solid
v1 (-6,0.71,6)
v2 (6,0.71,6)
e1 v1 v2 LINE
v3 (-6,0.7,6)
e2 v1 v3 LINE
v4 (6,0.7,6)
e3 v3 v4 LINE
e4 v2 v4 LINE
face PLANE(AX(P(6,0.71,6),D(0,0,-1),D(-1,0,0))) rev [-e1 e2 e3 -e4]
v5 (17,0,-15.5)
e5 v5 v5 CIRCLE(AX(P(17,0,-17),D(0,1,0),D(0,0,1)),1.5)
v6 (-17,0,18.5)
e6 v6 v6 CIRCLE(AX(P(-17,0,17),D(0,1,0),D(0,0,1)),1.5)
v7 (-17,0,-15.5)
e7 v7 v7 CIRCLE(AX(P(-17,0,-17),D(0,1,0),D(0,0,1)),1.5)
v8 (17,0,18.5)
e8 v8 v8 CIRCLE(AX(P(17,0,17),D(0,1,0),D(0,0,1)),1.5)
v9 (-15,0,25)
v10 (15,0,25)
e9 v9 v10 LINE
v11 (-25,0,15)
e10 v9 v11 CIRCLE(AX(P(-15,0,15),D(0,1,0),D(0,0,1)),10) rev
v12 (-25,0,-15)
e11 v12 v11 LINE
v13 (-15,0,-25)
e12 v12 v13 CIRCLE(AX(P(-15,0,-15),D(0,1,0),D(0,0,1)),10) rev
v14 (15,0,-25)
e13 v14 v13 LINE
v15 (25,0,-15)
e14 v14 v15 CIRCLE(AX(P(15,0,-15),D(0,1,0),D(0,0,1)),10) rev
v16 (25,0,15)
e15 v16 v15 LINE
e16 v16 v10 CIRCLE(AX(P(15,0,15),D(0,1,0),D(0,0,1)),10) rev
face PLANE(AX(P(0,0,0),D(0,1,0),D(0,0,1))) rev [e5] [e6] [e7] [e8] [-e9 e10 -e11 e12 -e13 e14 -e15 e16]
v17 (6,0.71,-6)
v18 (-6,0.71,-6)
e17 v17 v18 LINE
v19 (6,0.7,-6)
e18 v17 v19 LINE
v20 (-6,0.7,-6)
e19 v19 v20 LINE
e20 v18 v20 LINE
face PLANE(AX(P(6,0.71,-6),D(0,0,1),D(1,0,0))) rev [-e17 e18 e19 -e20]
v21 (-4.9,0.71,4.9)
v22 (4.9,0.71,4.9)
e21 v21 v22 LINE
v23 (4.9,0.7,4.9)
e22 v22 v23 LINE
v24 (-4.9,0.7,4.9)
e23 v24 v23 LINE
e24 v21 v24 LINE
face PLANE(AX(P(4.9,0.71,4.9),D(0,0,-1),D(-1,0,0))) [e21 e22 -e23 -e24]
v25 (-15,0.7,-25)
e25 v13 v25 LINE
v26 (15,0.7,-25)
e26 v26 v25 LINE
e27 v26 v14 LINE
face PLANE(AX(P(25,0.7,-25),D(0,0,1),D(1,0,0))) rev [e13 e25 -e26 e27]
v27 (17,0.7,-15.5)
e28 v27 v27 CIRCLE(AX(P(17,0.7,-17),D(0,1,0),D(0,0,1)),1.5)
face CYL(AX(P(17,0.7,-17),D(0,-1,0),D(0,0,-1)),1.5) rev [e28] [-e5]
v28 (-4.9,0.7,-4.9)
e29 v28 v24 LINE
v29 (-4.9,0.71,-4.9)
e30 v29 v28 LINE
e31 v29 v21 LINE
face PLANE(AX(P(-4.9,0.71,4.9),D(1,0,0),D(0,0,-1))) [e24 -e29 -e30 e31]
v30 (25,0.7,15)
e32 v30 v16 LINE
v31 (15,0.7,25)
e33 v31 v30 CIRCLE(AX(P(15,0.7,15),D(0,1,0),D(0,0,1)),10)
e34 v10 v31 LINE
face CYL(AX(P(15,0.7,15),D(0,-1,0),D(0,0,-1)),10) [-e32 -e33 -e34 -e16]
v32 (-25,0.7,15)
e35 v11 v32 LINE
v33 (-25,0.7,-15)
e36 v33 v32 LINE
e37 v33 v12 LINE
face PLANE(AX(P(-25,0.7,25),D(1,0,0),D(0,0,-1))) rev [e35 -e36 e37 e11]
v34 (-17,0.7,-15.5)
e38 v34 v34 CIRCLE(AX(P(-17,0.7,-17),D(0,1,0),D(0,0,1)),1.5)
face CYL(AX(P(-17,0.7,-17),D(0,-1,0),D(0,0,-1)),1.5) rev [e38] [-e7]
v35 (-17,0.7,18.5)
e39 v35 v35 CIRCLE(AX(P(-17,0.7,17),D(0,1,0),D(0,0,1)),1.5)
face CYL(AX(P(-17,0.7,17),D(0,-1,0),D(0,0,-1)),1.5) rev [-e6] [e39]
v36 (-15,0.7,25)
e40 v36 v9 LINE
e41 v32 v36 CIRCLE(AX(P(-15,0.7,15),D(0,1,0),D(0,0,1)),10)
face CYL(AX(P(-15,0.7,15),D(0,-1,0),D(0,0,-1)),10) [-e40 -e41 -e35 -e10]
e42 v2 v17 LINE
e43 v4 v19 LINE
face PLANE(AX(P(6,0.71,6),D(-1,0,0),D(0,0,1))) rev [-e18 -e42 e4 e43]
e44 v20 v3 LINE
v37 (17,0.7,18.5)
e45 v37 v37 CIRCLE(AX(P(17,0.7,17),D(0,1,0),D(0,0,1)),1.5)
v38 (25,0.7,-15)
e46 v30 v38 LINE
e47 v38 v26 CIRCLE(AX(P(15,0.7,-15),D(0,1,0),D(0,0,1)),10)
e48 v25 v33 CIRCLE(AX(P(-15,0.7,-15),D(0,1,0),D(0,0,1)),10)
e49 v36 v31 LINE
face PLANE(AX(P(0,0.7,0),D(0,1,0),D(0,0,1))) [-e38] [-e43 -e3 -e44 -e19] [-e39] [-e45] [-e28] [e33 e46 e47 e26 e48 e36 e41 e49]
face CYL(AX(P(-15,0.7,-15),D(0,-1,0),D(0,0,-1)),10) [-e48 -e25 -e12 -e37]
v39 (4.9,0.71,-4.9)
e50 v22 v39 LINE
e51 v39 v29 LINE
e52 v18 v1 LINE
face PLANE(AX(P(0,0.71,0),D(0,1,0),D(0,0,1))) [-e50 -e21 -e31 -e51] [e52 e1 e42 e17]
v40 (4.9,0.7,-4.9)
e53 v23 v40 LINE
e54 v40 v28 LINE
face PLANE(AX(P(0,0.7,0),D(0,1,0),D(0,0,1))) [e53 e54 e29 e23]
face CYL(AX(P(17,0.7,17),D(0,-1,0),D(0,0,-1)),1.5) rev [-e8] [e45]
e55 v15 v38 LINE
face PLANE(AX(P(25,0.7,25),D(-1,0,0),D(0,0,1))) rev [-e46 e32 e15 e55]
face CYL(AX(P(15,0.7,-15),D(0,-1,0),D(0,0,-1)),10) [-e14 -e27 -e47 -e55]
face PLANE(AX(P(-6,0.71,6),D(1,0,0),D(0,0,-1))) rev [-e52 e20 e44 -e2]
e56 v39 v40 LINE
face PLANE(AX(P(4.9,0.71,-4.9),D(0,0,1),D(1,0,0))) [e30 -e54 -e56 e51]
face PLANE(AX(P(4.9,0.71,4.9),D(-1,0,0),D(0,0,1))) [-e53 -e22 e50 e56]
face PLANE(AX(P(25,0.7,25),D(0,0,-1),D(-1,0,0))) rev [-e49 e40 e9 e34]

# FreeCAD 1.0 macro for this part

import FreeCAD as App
import Part
import Sketcher

V = App.Vector
Q = App.Units.Quantity


def edges_at(feature, points):
    """Names of the edges that pass closest to the given points."""
    edges = feature.Shape.Edges
    near = lambda p: min(range(len(edges)), key=lambda i: edges[i].distToShape(Part.Vertex(*p))[0])
    return sorted({f"Edge{near(p) + 1}" for p in points})

doc = App.newDocument("Part")
body = doc.addObject("PartDesign::Body", "Body")

# Sketch on XZ plane
sketch1 = body.newObject("Sketcher::SketchObject", "Sketch")
sketch1.AttachmentSupport = (doc.getObject("XZ_Plane"), [""])
sketch1.MapMode = "FlatFace"
sketch1.addGeometry([
    Part.LineSegment(V(-25, -25, 0), V(-25, 25, 0)),  # 0
    Part.LineSegment(V(-25, 25, 0), V(25, 25, 0)),  # 1
    Part.LineSegment(V(25, 25, 0), V(25, -25, 0)),  # 2
    Part.LineSegment(V(25, -25, 0), V(-25, -25, 0)),  # 3
    Part.Circle(V(-17, 17, 0), V(0, 0, 1), 1.5),  # 4
    Part.Circle(V(17, 17, 0), V(0, 0, 1), 1.5),  # 5
    Part.Circle(V(-17, -17, 0), V(0, 0, 1), 1.5),  # 6
    Part.Circle(V(17, -17, 0), V(0, 0, 1), 1.5),  # 7
], False)
sketch1.addConstraint([
    Sketcher.Constraint("Coincident", 0, 2, 1, 1),
    Sketcher.Constraint("Coincident", 1, 2, 2, 1),
    Sketcher.Constraint("Coincident", 2, 2, 3, 1),
    Sketcher.Constraint("Coincident", 3, 2, 0, 1),
    Sketcher.Constraint("Vertical", 0),
    Sketcher.Constraint("Horizontal", 1),
    Sketcher.Constraint("Vertical", 2),
    Sketcher.Constraint("Horizontal", 3),
    Sketcher.Constraint("Equal", 4, 5),
    Sketcher.Constraint("Equal", 5, 6),
    Sketcher.Constraint("Equal", 6, 7),
    Sketcher.Constraint("Symmetric", 5, 3, 6, 3, -1, 1),
    Sketcher.Constraint("Symmetric", 4, 3, 7, 3, -1, 1),
    Sketcher.Constraint("Symmetric", 0, 2, 2, 2, -1, 1),
    Sketcher.Constraint("Symmetric", 4, 3, 5, 3, -2),
    Sketcher.Constraint("Equal", 3, 0),
    Sketcher.Constraint("Diameter", 4, Q("3 mm")),
    Sketcher.Constraint("DistanceX", 1, 1, 1, 2, Q("50 mm")),
    Sketcher.Constraint("DistanceX", 4, 3, -1, 1, Q("17 mm")),
    Sketcher.Constraint("DistanceY", -1, 1, 4, 3, Q("17 mm")),
])
pad1 = body.newObject("PartDesign::Pad", "Pad")
pad1.Profile = sketch1
pad1.Length = 0.7
pad1.Reversed = True
doc.recompute()

fillet = body.newObject("PartDesign::Fillet", "Fillet")
fillet.Base = (pad1, edges_at(pad1, [
    (-25, 0.35, -25),
    (25, 0.35, -25),
    (25, 0.35, 25),
    (-25, 0.35, 25),
]))
fillet.Radius = 10

# Sketch on XZ plane
sketch2 = body.newObject("Sketcher::SketchObject", "Sketch001")
sketch2.AttachmentSupport = (doc.getObject("XZ_Plane"), [""])
sketch2.MapMode = "FlatFace"
sketch2.AttachmentOffset = App.Placement(V(0, 0, -0.7), App.Rotation())
sketch2.addGeometry([
    Part.LineSegment(V(-6, -6, 0), V(-6, 6, 0)),  # 0
    Part.LineSegment(V(-6, 6, 0), V(6, 6, 0)),  # 1
    Part.LineSegment(V(6, 6, 0), V(6, -6, 0)),  # 2
    Part.LineSegment(V(6, -6, 0), V(-6, -6, 0)),  # 3
    Part.LineSegment(V(5, 5, 0), V(-5, 5, 0)),  # 4
    Part.LineSegment(V(-5, 5, 0), V(-5, -5, 0)),  # 5
    Part.LineSegment(V(-5, -5, 0), V(5, -5, 0)),  # 6
    Part.LineSegment(V(5, -5, 0), V(5, 5, 0)),  # 7
], False)
sketch2.addConstraint([
    Sketcher.Constraint("Coincident", 0, 2, 1, 1),
    Sketcher.Constraint("Coincident", 1, 2, 2, 1),
    Sketcher.Constraint("Coincident", 2, 2, 3, 1),
    Sketcher.Constraint("Coincident", 3, 2, 0, 1),
    Sketcher.Constraint("Coincident", 4, 2, 5, 1),
    Sketcher.Constraint("Coincident", 5, 2, 6, 1),
    Sketcher.Constraint("Coincident", 6, 2, 7, 1),
    Sketcher.Constraint("Coincident", 7, 2, 4, 1),
    Sketcher.Constraint("Vertical", 0),
    Sketcher.Constraint("Horizontal", 1),
    Sketcher.Constraint("Vertical", 2),
    Sketcher.Constraint("Horizontal", 3),
    Sketcher.Constraint("Horizontal", 4),
    Sketcher.Constraint("Vertical", 5),
    Sketcher.Constraint("Horizontal", 6),
    Sketcher.Constraint("Vertical", 7),
    Sketcher.Constraint("Symmetric", 0, 2, 2, 2, -1, 1),
    Sketcher.Constraint("Symmetric", 4, 2, 6, 2, -1, 1),
    Sketcher.Constraint("Equal", 3, 0),
    Sketcher.Constraint("Equal", 6, 5),
    Sketcher.Constraint("DistanceX", 1, 1, 1, 2, Q("12 mm")),
    Sketcher.Constraint("DistanceX", 4, 2, 4, 1, Q("9.8 mm")),
])
pad2 = body.newObject("PartDesign::Pad", "Pad001")
pad2.Profile = sketch2
pad2.Length = 0.01
pad2.Reversed = True

doc.recompute()
